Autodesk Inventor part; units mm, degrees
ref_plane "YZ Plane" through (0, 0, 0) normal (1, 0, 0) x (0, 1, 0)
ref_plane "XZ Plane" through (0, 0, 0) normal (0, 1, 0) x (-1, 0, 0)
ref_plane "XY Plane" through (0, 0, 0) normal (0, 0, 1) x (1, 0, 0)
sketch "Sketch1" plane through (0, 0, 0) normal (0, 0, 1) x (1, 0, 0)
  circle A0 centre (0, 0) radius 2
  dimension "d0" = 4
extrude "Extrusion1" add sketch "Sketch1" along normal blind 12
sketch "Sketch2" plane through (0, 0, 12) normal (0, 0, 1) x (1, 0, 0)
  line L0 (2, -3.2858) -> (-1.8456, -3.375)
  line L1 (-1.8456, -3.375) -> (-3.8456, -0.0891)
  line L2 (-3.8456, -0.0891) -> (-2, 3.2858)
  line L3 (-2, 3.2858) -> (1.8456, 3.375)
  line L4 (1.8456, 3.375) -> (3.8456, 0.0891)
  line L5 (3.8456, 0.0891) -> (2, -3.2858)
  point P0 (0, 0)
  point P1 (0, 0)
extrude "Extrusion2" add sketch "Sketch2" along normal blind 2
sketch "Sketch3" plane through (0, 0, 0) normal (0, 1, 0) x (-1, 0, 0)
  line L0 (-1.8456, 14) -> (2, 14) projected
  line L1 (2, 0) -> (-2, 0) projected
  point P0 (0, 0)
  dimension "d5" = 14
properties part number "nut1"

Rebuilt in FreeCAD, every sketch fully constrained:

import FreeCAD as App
import Part
import Sketcher

doc = App.newDocument("Part")
body = doc.addObject("PartDesign::Body", "Body")

sketch1 = doc.addObject("Sketcher::SketchObject", "Sketch")
body.addObject(sketch1)
sketch1.AttachmentSupport = (doc.XY_Plane, [""])
sketch1.MapMode = "FlatFace"
sketch1.addGeometry(Part.Circle(App.Vector(0, 0, 0), App.Vector(0, 0, 1), 2), False)
sketch1.addConstraint([
    Sketcher.Constraint("Coincident", 0, 3, -1, 1),
    Sketcher.Constraint("Diameter", 0, 4.0),
])
pad1 = doc.addObject("PartDesign::Pad", "Pad")
body.addObject(pad1)
pad1.Profile = sketch1
pad1.Length = 12

sketch2 = doc.addObject("Sketcher::SketchObject", "Sketch001")
body.addObject(sketch2)
sketch2.AttachmentSupport = (doc.XY_Plane, [""])
sketch2.MapMode = "FlatFace"
sketch2.AttachmentOffset = App.Placement(App.Vector(0, 0, 12), App.Rotation())
sketch2.addGeometry([
    Part.LineSegment(App.Vector(-1.8456, -3.375, 0), App.Vector(2, -3.2858, 0)),
    Part.LineSegment(App.Vector(2, -3.2858, 0), App.Vector(3.8456, 0.0891, 0)),
    Part.LineSegment(App.Vector(3.8456, 0.0891, 0), App.Vector(1.8456, 3.375, 0)),
    Part.LineSegment(App.Vector(1.8456, 3.375, 0), App.Vector(-2, 3.2858, 0)),
    Part.LineSegment(App.Vector(-2, 3.2858, 0), App.Vector(-3.8456, -0.0891, 0)),
    Part.LineSegment(App.Vector(-3.8456, -0.0891, 0), App.Vector(-1.8456, -3.375, 0)),
], False)
sketch2.addConstraint([
    Sketcher.Constraint("Coincident", 0, 2, 1, 1),
    Sketcher.Constraint("Coincident", 1, 2, 2, 1),
    Sketcher.Constraint("Coincident", 2, 2, 3, 1),
    Sketcher.Constraint("Coincident", 3, 2, 4, 1),
    Sketcher.Constraint("Coincident", 4, 2, 5, 1),
    Sketcher.Constraint("Coincident", 5, 2, 0, 1),
    Sketcher.Constraint("Symmetric", 0, 2, 3, 2, -1, 1),
    Sketcher.Constraint("Symmetric", 1, 2, 4, 2, -1, 1),
    Sketcher.Constraint("Symmetric", 2, 2, 5, 2, -1, 1),
    Sketcher.Constraint("Equal", 0, 1),
    Sketcher.Constraint("Equal", 1, 2),
    Sketcher.Constraint("DistanceX", -1, 1, 0, 2, 2.0),
    Sketcher.Constraint("DistanceX", 2, 2, 1, 2, 2.0),
    Sketcher.Constraint("DistanceY", 5, 2, 2, 2, 6.75),
    Sketcher.Constraint("DistanceY", -1, 1, 1, 2, 0.089),
])
pad2 = doc.addObject("PartDesign::Pad", "Pad001")
body.addObject(pad2)
pad2.Profile = sketch2
pad2.Length = 2

doc.recompute()
